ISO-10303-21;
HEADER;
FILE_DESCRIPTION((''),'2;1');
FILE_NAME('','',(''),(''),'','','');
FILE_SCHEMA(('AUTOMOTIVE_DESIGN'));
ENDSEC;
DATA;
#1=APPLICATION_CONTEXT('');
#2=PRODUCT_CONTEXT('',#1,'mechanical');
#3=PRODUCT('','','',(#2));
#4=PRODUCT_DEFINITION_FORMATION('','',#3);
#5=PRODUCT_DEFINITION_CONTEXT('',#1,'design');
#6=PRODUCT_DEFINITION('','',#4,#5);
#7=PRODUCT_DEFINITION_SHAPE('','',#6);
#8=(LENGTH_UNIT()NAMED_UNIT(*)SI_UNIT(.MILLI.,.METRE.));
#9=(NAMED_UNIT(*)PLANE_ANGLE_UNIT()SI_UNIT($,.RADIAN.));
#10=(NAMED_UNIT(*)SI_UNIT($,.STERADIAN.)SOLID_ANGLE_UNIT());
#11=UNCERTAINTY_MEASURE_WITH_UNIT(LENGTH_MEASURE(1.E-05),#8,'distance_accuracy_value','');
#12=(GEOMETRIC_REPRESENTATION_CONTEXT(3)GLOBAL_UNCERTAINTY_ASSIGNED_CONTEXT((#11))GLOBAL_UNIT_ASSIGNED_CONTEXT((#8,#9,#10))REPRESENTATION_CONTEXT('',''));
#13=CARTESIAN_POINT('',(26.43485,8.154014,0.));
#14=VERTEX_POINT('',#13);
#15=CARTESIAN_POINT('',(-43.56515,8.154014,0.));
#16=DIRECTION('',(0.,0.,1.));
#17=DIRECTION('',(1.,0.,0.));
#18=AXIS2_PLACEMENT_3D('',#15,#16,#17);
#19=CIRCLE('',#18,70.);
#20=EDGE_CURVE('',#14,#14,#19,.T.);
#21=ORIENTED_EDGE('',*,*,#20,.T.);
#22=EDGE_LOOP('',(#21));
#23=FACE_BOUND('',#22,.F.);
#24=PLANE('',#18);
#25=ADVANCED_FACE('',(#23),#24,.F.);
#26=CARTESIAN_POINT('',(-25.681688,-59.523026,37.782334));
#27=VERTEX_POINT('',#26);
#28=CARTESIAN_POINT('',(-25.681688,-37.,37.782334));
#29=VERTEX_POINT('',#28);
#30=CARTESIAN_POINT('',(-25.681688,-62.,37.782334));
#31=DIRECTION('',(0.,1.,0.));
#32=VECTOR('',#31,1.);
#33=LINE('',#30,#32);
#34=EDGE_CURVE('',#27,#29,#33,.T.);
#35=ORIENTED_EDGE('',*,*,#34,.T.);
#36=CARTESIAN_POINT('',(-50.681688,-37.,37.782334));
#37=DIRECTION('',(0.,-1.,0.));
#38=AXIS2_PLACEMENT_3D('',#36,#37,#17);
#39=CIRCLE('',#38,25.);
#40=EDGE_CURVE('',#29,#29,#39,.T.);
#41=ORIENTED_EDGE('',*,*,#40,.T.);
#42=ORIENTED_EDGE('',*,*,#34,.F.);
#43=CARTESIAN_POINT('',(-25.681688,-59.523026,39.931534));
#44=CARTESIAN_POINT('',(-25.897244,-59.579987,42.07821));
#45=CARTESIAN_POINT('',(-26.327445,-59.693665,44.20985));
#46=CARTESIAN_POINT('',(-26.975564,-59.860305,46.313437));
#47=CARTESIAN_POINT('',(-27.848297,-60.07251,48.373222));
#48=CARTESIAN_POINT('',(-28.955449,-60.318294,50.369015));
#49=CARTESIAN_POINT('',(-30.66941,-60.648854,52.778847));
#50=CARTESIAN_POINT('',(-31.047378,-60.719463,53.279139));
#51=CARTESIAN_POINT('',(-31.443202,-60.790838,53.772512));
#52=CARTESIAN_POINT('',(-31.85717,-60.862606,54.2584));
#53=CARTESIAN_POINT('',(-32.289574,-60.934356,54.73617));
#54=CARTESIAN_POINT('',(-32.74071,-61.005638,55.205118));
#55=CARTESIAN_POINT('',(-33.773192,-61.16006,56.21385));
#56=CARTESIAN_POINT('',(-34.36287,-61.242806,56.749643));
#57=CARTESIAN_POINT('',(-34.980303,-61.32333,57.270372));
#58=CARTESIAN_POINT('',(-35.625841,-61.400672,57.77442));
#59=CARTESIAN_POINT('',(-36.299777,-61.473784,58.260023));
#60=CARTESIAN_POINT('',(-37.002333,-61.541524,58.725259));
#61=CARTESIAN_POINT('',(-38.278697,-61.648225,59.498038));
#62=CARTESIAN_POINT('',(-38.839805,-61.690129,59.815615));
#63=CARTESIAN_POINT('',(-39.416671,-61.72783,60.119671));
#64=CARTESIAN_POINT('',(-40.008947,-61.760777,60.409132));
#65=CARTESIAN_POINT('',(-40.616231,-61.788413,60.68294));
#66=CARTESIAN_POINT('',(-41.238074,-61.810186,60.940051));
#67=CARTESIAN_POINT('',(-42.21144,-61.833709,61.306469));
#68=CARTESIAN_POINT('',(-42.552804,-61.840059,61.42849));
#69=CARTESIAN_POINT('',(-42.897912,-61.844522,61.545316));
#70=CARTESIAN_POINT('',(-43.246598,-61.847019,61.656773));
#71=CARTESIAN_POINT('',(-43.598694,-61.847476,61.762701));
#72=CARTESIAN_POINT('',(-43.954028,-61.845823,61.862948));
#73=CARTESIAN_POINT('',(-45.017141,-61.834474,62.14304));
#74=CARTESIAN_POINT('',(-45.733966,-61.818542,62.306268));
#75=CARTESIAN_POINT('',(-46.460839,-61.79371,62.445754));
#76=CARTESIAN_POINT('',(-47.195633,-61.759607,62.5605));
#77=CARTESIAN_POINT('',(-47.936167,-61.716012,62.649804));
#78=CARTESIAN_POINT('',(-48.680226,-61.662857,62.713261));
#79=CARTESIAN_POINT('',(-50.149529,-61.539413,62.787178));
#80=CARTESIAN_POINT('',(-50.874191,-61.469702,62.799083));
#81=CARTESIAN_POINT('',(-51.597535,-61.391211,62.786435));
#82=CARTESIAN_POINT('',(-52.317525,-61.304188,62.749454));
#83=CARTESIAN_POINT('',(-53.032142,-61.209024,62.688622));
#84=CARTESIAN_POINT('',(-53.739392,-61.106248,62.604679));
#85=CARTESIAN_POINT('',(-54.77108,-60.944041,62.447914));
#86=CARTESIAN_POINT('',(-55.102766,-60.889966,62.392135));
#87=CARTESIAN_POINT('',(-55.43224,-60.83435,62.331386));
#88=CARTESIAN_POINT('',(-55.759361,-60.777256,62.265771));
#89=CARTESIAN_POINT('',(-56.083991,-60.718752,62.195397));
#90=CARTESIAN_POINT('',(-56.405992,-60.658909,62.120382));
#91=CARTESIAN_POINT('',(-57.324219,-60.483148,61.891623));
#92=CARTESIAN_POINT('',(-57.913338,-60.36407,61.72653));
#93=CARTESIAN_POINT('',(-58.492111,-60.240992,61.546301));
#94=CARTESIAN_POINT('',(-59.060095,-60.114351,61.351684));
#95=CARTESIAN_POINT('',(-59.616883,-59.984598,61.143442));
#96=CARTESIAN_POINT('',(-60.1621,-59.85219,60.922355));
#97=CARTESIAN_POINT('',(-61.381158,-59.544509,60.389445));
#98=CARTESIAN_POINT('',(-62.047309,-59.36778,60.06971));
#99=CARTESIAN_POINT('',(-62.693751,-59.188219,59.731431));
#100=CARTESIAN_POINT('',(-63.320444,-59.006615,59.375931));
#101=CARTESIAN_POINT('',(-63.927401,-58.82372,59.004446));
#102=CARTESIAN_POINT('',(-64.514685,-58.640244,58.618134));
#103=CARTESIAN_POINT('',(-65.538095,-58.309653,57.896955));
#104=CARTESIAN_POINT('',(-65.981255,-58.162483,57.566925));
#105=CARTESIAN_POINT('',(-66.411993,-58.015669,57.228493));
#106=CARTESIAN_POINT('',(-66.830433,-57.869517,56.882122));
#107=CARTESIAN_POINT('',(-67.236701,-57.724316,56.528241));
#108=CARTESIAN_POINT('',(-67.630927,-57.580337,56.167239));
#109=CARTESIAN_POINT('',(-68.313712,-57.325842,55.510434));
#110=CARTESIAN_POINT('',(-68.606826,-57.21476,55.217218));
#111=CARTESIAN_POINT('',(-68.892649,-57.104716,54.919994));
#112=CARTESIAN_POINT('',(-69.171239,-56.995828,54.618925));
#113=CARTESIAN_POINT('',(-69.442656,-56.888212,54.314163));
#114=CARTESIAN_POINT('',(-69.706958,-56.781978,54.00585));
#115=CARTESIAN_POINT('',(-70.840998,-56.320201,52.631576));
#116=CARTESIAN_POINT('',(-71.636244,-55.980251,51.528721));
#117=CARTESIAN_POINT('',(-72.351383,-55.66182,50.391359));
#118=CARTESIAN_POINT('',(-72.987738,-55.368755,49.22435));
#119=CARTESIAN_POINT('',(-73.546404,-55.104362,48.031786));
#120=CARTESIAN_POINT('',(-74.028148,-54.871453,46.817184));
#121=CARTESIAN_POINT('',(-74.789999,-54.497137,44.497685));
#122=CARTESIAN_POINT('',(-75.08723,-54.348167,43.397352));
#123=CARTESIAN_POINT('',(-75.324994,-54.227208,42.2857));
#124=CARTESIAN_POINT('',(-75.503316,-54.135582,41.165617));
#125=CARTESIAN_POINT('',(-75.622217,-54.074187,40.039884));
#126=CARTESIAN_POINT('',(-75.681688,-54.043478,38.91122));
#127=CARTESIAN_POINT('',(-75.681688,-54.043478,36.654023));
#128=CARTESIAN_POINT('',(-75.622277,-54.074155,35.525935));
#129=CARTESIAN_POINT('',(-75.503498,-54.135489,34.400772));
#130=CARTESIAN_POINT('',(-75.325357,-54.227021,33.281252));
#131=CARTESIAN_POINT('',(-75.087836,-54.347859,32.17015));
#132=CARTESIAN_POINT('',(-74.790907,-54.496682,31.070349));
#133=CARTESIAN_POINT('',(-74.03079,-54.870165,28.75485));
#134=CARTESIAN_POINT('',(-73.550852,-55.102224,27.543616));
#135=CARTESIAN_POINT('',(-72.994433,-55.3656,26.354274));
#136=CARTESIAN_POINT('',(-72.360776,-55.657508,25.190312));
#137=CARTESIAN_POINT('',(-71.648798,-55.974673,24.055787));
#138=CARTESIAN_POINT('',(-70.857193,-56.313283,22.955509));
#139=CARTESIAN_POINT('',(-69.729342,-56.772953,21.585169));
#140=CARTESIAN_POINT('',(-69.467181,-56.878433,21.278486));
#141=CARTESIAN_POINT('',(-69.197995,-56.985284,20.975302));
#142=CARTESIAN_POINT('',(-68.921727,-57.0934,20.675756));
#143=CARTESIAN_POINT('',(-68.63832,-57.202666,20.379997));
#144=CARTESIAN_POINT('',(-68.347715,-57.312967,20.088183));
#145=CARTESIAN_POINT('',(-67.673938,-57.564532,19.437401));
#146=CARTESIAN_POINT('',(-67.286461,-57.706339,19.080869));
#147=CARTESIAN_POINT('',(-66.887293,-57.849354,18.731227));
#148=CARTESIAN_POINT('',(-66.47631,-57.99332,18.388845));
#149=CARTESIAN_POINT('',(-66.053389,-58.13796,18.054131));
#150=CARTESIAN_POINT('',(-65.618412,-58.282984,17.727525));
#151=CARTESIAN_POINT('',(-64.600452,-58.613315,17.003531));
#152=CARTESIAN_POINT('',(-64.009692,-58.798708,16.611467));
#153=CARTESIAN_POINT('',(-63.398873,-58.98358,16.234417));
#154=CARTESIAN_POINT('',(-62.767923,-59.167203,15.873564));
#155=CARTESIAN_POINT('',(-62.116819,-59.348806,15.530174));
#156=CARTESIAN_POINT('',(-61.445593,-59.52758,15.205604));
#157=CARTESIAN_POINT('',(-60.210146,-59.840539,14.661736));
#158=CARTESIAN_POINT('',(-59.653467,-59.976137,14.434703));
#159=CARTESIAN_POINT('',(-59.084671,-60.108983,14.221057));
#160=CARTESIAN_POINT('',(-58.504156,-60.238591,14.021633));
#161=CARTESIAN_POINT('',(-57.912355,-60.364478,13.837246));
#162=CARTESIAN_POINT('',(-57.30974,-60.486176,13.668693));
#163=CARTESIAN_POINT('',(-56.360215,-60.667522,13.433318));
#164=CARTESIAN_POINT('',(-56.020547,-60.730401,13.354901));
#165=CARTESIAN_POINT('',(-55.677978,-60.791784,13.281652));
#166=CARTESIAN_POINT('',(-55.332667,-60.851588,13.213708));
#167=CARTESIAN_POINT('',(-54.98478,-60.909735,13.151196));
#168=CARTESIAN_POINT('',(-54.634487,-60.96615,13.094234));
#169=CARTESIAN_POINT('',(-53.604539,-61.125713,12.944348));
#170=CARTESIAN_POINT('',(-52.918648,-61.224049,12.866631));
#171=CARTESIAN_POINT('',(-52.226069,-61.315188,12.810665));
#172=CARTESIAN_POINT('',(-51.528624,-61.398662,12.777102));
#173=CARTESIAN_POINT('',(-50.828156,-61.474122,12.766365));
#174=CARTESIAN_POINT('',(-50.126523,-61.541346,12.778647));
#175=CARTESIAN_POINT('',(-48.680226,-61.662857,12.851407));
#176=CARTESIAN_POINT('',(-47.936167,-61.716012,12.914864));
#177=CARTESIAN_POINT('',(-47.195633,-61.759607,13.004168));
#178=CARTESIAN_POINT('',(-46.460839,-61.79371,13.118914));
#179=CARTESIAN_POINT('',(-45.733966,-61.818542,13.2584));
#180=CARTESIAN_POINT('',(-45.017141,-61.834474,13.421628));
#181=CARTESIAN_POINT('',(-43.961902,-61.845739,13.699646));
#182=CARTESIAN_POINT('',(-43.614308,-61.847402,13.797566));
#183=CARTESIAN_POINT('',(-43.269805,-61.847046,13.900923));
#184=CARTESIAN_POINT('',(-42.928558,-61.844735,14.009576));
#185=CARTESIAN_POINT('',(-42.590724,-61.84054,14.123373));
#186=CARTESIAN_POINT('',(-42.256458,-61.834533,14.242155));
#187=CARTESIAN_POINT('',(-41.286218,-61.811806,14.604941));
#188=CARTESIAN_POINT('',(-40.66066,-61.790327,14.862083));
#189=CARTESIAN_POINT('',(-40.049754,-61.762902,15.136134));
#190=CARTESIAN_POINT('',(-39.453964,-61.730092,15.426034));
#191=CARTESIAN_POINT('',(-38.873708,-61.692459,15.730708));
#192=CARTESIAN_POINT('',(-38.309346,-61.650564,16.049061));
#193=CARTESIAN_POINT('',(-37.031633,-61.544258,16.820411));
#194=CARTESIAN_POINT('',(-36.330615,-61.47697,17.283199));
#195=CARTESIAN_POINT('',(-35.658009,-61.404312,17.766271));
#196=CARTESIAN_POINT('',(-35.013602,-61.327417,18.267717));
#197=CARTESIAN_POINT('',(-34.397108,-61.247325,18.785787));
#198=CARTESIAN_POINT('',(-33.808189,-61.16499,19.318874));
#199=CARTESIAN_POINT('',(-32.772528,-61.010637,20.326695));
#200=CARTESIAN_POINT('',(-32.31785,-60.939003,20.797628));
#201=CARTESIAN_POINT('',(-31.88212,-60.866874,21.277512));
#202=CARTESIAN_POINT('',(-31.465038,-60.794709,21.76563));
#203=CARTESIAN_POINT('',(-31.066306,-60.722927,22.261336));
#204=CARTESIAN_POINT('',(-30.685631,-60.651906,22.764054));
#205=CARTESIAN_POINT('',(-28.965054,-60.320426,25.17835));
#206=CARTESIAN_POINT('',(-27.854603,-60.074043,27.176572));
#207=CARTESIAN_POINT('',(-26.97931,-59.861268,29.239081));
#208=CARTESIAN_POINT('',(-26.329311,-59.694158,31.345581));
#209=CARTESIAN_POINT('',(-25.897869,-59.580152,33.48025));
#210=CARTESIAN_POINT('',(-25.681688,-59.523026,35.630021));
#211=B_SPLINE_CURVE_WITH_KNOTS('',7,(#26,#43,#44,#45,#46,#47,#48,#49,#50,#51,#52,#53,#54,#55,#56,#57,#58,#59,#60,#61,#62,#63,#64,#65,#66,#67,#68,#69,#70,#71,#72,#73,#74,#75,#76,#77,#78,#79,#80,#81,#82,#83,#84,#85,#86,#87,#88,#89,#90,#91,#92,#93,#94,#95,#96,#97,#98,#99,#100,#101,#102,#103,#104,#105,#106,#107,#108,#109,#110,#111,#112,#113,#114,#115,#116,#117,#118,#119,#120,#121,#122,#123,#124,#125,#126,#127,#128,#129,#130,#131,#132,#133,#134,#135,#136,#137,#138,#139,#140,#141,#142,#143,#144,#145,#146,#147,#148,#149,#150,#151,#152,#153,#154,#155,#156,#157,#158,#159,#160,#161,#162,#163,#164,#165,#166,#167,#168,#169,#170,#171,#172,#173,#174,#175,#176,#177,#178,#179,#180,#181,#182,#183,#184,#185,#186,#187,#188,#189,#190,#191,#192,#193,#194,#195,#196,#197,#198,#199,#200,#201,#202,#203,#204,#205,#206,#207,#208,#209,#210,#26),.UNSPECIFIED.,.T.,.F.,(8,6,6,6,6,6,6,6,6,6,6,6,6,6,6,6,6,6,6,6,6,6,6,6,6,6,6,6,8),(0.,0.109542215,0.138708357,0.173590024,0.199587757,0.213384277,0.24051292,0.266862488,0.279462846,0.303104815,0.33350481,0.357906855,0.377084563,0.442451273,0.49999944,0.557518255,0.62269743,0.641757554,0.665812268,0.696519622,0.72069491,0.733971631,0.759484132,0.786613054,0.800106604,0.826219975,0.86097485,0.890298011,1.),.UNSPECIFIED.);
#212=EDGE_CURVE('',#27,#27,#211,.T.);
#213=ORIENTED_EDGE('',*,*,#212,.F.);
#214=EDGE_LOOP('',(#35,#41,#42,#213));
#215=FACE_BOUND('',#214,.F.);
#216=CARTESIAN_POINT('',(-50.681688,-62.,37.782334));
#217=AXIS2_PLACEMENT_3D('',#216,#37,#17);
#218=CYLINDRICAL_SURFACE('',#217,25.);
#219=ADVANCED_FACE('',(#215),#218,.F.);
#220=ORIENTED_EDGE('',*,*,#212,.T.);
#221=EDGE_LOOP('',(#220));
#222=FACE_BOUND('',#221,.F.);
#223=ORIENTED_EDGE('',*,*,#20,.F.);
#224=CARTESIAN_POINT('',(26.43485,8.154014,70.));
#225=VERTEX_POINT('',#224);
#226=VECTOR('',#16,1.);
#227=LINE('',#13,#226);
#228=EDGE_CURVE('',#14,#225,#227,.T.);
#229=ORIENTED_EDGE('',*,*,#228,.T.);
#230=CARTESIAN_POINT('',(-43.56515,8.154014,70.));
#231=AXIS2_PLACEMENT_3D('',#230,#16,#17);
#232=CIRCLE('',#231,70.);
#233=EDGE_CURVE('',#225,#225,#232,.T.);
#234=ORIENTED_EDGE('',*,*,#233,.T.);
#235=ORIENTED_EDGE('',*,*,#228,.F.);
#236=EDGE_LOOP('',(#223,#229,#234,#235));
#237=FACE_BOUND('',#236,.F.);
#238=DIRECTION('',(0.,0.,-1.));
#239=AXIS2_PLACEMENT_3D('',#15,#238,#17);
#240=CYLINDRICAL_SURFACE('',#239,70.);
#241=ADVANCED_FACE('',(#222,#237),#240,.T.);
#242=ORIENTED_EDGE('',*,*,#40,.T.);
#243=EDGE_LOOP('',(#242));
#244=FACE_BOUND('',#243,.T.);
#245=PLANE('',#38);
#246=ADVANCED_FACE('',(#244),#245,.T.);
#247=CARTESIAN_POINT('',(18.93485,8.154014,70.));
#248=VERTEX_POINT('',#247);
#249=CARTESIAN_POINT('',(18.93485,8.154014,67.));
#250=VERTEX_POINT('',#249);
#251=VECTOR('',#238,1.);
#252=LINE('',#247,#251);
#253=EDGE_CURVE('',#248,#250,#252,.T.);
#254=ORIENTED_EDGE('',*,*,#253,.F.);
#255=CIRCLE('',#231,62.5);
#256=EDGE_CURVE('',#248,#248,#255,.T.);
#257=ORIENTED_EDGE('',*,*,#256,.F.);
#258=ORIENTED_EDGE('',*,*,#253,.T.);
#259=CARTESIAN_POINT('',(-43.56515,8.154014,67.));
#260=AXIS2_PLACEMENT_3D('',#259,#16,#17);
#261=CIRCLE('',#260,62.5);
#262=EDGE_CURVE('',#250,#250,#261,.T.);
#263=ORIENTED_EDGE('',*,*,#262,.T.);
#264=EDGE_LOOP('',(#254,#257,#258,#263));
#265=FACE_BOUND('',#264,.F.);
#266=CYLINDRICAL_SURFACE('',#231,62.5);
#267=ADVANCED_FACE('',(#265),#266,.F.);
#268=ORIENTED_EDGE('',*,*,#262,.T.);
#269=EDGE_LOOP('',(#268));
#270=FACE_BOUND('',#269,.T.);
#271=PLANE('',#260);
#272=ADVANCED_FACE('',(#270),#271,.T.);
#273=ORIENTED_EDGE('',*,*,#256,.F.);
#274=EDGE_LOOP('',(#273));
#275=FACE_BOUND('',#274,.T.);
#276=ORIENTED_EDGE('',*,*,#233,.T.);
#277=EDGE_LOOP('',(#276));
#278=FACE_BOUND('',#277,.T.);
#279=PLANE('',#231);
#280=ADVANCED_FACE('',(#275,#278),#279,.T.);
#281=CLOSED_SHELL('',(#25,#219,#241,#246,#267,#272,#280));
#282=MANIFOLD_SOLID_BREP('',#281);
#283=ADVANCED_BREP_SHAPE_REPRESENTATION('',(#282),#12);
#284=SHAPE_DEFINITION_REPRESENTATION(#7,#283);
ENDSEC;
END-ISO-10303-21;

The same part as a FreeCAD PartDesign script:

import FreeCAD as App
import Part
import Sketcher

V = App.Vector
Q = App.Units.Quantity

doc = App.newDocument("Part")
body = doc.addObject("PartDesign::Body", "Body")

# Sketch on XY plane
sketch1 = body.newObject("Sketcher::SketchObject", "Sketch")
sketch1.AttachmentSupport = (doc.getObject("XY_Plane"), [""])
sketch1.MapMode = "FlatFace"
sketch1.addGeometry(Part.Circle(V(-44, 8, 0), V(0, 0, 1), 70), False)
sketch1.addConstraint(Sketcher.Constraint("Diameter", 0, Q("140 mm")))
sketch1.addConstraint(Sketcher.Constraint("DistanceX", 0, 3, -1, 1, Q("43.56515 mm")))
sketch1.addConstraint(Sketcher.Constraint("DistanceY", -1, 1, 0, 3, Q("8.154014 mm")))
pad1 = body.newObject("PartDesign::Pad", "Pad")
pad1.Profile = sketch1
pad1.Length = 70

# Sketch on XZ plane
sketch2 = body.newObject("Sketcher::SketchObject", "Sketch001")
sketch2.AttachmentSupport = (doc.getObject("XZ_Plane"), [""])
sketch2.MapMode = "FlatFace"
sketch2.AttachmentOffset = App.Placement(V(0, 0, 62), App.Rotation())
sketch2.addGeometry(Part.Circle(V(-51, 38, 0), V(0, 0, 1), 25), False)
sketch2.addConstraint(Sketcher.Constraint("Diameter", 0, Q("50 mm")))
sketch2.addConstraint(Sketcher.Constraint("DistanceX", 0, 3, -1, 1, Q("50.681688 mm")))
sketch2.addConstraint(Sketcher.Constraint("DistanceY", -1, 1, 0, 3, Q("37.782334 mm")))
pocket1 = body.newObject("PartDesign::Pocket", "Pocket")
pocket1.Profile = sketch2
pocket1.Length = 25

# Sketch on XY plane
sketch3 = body.newObject("Sketcher::SketchObject", "Sketch002")
sketch3.AttachmentSupport = (doc.getObject("XY_Plane"), [""])
sketch3.MapMode = "FlatFace"
sketch3.AttachmentOffset = App.Placement(V(0, 0, 70), App.Rotation())
sketch3.addGeometry(Part.Circle(V(-44, 8, 0), V(0, 0, 1), 62), False)
sketch3.addConstraint(Sketcher.Constraint("Diameter", 0, Q("125 mm")))
sketch3.addConstraint(Sketcher.Constraint("DistanceX", 0, 3, -1, 1, Q("43.56515 mm")))
sketch3.addConstraint(Sketcher.Constraint("DistanceY", -1, 1, 0, 3, Q("8.154014 mm")))
pocket2 = body.newObject("PartDesign::Pocket", "Pocket001")
pocket2.Profile = sketch3
pocket2.Length = 3

doc.recompute()
